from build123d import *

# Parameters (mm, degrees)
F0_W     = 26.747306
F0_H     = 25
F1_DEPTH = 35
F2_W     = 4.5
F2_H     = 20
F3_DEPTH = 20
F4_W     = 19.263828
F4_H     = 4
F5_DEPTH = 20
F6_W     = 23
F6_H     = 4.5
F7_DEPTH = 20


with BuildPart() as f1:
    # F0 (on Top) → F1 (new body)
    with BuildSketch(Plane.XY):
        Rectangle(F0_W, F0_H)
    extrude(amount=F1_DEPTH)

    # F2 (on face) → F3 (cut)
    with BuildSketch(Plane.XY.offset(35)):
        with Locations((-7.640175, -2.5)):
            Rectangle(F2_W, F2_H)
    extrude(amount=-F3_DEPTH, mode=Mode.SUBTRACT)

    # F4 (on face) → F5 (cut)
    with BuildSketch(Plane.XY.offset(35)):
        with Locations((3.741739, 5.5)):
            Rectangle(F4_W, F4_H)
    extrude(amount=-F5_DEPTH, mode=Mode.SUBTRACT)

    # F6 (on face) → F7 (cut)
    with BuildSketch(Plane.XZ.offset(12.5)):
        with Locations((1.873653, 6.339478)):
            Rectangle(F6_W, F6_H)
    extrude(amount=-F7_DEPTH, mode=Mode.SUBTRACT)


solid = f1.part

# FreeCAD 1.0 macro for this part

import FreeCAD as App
import Part
import Sketcher

doc = App.newDocument("Part")
body = doc.addObject("PartDesign::Body", "Body")

sketch1 = body.newObject("Sketcher::SketchObject", "Sketch")
sketch1.AttachmentSupport = (doc.getObject("XY_Plane"), [""])
sketch1.MapMode = "FlatFace"
sketch1.addGeometry(Part.LineSegment(App.Vector(-13, 12, 0), App.Vector(-13, -12, 0)), False)
sketch1.addGeometry(Part.LineSegment(App.Vector(-13, -12, 0), App.Vector(13, -12, 0)), False)
sketch1.addGeometry(Part.LineSegment(App.Vector(13, -12, 0), App.Vector(13, 12, 0)), False)
sketch1.addGeometry(Part.LineSegment(App.Vector(13, 12, 0), App.Vector(-13, 12, 0)), False)
sketch1.addConstraint(Sketcher.Constraint("Coincident", 0, 2, 1, 1))
sketch1.addConstraint(Sketcher.Constraint("Coincident", 1, 2, 2, 1))
sketch1.addConstraint(Sketcher.Constraint("Coincident", 2, 2, 3, 1))
sketch1.addConstraint(Sketcher.Constraint("Coincident", 3, 2, 0, 1))
sketch1.addConstraint(Sketcher.Constraint("Vertical", 0))
sketch1.addConstraint(Sketcher.Constraint("Horizontal", 1))
sketch1.addConstraint(Sketcher.Constraint("Vertical", 2))
sketch1.addConstraint(Sketcher.Constraint("Horizontal", 3))
sketch1.addConstraint(Sketcher.Constraint("Symmetric", 0, 2, 2, 2, -1, 1))
sketch1.addConstraint(Sketcher.Constraint("DistanceY", 0, 2, 0, 1, 25.0))
sketch1.addConstraint(Sketcher.Constraint("DistanceX", 1, 1, 1, 2, 26.747306))
pad1 = body.newObject("PartDesign::Pad", "Pad")
pad1.Profile = sketch1
pad1.Length = 35

sketch2 = body.newObject("Sketcher::SketchObject", "Sketch001")
sketch2.AttachmentSupport = (doc.getObject("XY_Plane"), [""])
sketch2.MapMode = "FlatFace"
sketch2.AttachmentOffset = App.Placement(App.Vector(0, 0, 35), App.Rotation())
sketch2.addGeometry(Part.LineSegment(App.Vector(-9.9, 7.5, 0), App.Vector(-9.9, -12.5, 0)), False)
sketch2.addGeometry(Part.LineSegment(App.Vector(-9.9, -12.5, 0), App.Vector(-5.4, -12.5, 0)), False)
sketch2.addGeometry(Part.LineSegment(App.Vector(-5.4, -12.5, 0), App.Vector(-5.4, 7.5, 0)), False)
sketch2.addGeometry(Part.LineSegment(App.Vector(-5.4, 7.5, 0), App.Vector(-9.9, 7.5, 0)), False)
sketch2.addConstraint(Sketcher.Constraint("Coincident", 0, 2, 1, 1))
sketch2.addConstraint(Sketcher.Constraint("Coincident", 1, 2, 2, 1))
sketch2.addConstraint(Sketcher.Constraint("Coincident", 2, 2, 3, 1))
sketch2.addConstraint(Sketcher.Constraint("Coincident", 3, 2, 0, 1))
sketch2.addConstraint(Sketcher.Constraint("Vertical", 0))
sketch2.addConstraint(Sketcher.Constraint("Horizontal", 1))
sketch2.addConstraint(Sketcher.Constraint("Vertical", 2))
sketch2.addConstraint(Sketcher.Constraint("Horizontal", 3))
sketch2.addConstraint(Sketcher.Constraint("DistanceY", 0, 2, 0, 1, 20.0))
sketch2.addConstraint(Sketcher.Constraint("DistanceX", 1, 1, 1, 2, 4.5))
sketch2.addConstraint(Sketcher.Constraint("DistanceY", 0, 2, -1, 1, 12.5))
sketch2.addConstraint(Sketcher.Constraint("DistanceX", 0, 2, -1, 1, 9.890175))
pocket1 = body.newObject("PartDesign::Pocket", "Pocket")
pocket1.Profile = sketch2
pocket1.Length = 20

sketch3 = body.newObject("Sketcher::SketchObject", "Sketch002")
sketch3.AttachmentSupport = (doc.getObject("XY_Plane"), [""])
sketch3.MapMode = "FlatFace"
sketch3.AttachmentOffset = App.Placement(App.Vector(0, 0, 35), App.Rotation())
sketch3.addGeometry(Part.LineSegment(App.Vector(-5.9, 7.5, 0), App.Vector(-5.9, 3.5, 0)), False)
sketch3.addGeometry(Part.LineSegment(App.Vector(-5.9, 3.5, 0), App.Vector(13.4, 3.5, 0)), False)
sketch3.addGeometry(Part.LineSegment(App.Vector(13.4, 3.5, 0), App.Vector(13.4, 7.5, 0)), False)
sketch3.addGeometry(Part.LineSegment(App.Vector(13.4, 7.5, 0), App.Vector(-5.9, 7.5, 0)), False)
sketch3.addConstraint(Sketcher.Constraint("Coincident", 0, 2, 1, 1))
sketch3.addConstraint(Sketcher.Constraint("Coincident", 1, 2, 2, 1))
sketch3.addConstraint(Sketcher.Constraint("Coincident", 2, 2, 3, 1))
sketch3.addConstraint(Sketcher.Constraint("Coincident", 3, 2, 0, 1))
sketch3.addConstraint(Sketcher.Constraint("Vertical", 0))
sketch3.addConstraint(Sketcher.Constraint("Horizontal", 1))
sketch3.addConstraint(Sketcher.Constraint("Vertical", 2))
sketch3.addConstraint(Sketcher.Constraint("Horizontal", 3))
sketch3.addConstraint(Sketcher.Constraint("DistanceY", 0, 2, 0, 1, 4.0))
sketch3.addConstraint(Sketcher.Constraint("DistanceY", -1, 1, 0, 2, 3.5))
sketch3.addConstraint(Sketcher.Constraint("DistanceX", 1, 1, 1, 2, 19.263828))
sketch3.addConstraint(Sketcher.Constraint("DistanceX", 0, 2, -1, 1, 5.890175))
pocket2 = body.newObject("PartDesign::Pocket", "Pocket001")
pocket2.Profile = sketch3
pocket2.Length = 20

sketch4 = body.newObject("Sketcher::SketchObject", "Sketch003")
sketch4.AttachmentSupport = (doc.getObject("XZ_Plane"), [""])
sketch4.MapMode = "FlatFace"
sketch4.AttachmentOffset = App.Placement(App.Vector(0, 0, 12.5), App.Rotation())
sketch4.addGeometry(Part.LineSegment(App.Vector(-9.6, 8.6, 0), App.Vector(-9.6, 4.1, 0)), False)
sketch4.addGeometry(Part.LineSegment(App.Vector(-9.6, 4.1, 0), App.Vector(13.4, 4.1, 0)), False)
sketch4.addGeometry(Part.LineSegment(App.Vector(13.4, 4.1, 0), App.Vector(13.4, 8.6, 0)), False)
sketch4.addGeometry(Part.LineSegment(App.Vector(13.4, 8.6, 0), App.Vector(-9.6, 8.6, 0)), False)
sketch4.addConstraint(Sketcher.Constraint("Coincident", 0, 2, 1, 1))
sketch4.addConstraint(Sketcher.Constraint("Coincident", 1, 2, 2, 1))
sketch4.addConstraint(Sketcher.Constraint("Coincident", 2, 2, 3, 1))
sketch4.addConstraint(Sketcher.Constraint("Coincident", 3, 2, 0, 1))
sketch4.addConstraint(Sketcher.Constraint("Vertical", 0))
sketch4.addConstraint(Sketcher.Constraint("Horizontal", 1))
sketch4.addConstraint(Sketcher.Constraint("Vertical", 2))
sketch4.addConstraint(Sketcher.Constraint("Horizontal", 3))
sketch4.addConstraint(Sketcher.Constraint("DistanceX", 1, 1, 1, 2, 23.0))
sketch4.addConstraint(Sketcher.Constraint("DistanceY", 0, 2, 0, 1, 4.5))
sketch4.addConstraint(Sketcher.Constraint("DistanceX", 0, 2, -1, 1, 9.626347))
sketch4.addConstraint(Sketcher.Constraint("DistanceY", -1, 1, 0, 2, 4.089478))
pocket3 = body.newObject("PartDesign::Pocket", "Pocket002")
pocket3.Profile = sketch4
pocket3.Length = 20

doc.recompute()
